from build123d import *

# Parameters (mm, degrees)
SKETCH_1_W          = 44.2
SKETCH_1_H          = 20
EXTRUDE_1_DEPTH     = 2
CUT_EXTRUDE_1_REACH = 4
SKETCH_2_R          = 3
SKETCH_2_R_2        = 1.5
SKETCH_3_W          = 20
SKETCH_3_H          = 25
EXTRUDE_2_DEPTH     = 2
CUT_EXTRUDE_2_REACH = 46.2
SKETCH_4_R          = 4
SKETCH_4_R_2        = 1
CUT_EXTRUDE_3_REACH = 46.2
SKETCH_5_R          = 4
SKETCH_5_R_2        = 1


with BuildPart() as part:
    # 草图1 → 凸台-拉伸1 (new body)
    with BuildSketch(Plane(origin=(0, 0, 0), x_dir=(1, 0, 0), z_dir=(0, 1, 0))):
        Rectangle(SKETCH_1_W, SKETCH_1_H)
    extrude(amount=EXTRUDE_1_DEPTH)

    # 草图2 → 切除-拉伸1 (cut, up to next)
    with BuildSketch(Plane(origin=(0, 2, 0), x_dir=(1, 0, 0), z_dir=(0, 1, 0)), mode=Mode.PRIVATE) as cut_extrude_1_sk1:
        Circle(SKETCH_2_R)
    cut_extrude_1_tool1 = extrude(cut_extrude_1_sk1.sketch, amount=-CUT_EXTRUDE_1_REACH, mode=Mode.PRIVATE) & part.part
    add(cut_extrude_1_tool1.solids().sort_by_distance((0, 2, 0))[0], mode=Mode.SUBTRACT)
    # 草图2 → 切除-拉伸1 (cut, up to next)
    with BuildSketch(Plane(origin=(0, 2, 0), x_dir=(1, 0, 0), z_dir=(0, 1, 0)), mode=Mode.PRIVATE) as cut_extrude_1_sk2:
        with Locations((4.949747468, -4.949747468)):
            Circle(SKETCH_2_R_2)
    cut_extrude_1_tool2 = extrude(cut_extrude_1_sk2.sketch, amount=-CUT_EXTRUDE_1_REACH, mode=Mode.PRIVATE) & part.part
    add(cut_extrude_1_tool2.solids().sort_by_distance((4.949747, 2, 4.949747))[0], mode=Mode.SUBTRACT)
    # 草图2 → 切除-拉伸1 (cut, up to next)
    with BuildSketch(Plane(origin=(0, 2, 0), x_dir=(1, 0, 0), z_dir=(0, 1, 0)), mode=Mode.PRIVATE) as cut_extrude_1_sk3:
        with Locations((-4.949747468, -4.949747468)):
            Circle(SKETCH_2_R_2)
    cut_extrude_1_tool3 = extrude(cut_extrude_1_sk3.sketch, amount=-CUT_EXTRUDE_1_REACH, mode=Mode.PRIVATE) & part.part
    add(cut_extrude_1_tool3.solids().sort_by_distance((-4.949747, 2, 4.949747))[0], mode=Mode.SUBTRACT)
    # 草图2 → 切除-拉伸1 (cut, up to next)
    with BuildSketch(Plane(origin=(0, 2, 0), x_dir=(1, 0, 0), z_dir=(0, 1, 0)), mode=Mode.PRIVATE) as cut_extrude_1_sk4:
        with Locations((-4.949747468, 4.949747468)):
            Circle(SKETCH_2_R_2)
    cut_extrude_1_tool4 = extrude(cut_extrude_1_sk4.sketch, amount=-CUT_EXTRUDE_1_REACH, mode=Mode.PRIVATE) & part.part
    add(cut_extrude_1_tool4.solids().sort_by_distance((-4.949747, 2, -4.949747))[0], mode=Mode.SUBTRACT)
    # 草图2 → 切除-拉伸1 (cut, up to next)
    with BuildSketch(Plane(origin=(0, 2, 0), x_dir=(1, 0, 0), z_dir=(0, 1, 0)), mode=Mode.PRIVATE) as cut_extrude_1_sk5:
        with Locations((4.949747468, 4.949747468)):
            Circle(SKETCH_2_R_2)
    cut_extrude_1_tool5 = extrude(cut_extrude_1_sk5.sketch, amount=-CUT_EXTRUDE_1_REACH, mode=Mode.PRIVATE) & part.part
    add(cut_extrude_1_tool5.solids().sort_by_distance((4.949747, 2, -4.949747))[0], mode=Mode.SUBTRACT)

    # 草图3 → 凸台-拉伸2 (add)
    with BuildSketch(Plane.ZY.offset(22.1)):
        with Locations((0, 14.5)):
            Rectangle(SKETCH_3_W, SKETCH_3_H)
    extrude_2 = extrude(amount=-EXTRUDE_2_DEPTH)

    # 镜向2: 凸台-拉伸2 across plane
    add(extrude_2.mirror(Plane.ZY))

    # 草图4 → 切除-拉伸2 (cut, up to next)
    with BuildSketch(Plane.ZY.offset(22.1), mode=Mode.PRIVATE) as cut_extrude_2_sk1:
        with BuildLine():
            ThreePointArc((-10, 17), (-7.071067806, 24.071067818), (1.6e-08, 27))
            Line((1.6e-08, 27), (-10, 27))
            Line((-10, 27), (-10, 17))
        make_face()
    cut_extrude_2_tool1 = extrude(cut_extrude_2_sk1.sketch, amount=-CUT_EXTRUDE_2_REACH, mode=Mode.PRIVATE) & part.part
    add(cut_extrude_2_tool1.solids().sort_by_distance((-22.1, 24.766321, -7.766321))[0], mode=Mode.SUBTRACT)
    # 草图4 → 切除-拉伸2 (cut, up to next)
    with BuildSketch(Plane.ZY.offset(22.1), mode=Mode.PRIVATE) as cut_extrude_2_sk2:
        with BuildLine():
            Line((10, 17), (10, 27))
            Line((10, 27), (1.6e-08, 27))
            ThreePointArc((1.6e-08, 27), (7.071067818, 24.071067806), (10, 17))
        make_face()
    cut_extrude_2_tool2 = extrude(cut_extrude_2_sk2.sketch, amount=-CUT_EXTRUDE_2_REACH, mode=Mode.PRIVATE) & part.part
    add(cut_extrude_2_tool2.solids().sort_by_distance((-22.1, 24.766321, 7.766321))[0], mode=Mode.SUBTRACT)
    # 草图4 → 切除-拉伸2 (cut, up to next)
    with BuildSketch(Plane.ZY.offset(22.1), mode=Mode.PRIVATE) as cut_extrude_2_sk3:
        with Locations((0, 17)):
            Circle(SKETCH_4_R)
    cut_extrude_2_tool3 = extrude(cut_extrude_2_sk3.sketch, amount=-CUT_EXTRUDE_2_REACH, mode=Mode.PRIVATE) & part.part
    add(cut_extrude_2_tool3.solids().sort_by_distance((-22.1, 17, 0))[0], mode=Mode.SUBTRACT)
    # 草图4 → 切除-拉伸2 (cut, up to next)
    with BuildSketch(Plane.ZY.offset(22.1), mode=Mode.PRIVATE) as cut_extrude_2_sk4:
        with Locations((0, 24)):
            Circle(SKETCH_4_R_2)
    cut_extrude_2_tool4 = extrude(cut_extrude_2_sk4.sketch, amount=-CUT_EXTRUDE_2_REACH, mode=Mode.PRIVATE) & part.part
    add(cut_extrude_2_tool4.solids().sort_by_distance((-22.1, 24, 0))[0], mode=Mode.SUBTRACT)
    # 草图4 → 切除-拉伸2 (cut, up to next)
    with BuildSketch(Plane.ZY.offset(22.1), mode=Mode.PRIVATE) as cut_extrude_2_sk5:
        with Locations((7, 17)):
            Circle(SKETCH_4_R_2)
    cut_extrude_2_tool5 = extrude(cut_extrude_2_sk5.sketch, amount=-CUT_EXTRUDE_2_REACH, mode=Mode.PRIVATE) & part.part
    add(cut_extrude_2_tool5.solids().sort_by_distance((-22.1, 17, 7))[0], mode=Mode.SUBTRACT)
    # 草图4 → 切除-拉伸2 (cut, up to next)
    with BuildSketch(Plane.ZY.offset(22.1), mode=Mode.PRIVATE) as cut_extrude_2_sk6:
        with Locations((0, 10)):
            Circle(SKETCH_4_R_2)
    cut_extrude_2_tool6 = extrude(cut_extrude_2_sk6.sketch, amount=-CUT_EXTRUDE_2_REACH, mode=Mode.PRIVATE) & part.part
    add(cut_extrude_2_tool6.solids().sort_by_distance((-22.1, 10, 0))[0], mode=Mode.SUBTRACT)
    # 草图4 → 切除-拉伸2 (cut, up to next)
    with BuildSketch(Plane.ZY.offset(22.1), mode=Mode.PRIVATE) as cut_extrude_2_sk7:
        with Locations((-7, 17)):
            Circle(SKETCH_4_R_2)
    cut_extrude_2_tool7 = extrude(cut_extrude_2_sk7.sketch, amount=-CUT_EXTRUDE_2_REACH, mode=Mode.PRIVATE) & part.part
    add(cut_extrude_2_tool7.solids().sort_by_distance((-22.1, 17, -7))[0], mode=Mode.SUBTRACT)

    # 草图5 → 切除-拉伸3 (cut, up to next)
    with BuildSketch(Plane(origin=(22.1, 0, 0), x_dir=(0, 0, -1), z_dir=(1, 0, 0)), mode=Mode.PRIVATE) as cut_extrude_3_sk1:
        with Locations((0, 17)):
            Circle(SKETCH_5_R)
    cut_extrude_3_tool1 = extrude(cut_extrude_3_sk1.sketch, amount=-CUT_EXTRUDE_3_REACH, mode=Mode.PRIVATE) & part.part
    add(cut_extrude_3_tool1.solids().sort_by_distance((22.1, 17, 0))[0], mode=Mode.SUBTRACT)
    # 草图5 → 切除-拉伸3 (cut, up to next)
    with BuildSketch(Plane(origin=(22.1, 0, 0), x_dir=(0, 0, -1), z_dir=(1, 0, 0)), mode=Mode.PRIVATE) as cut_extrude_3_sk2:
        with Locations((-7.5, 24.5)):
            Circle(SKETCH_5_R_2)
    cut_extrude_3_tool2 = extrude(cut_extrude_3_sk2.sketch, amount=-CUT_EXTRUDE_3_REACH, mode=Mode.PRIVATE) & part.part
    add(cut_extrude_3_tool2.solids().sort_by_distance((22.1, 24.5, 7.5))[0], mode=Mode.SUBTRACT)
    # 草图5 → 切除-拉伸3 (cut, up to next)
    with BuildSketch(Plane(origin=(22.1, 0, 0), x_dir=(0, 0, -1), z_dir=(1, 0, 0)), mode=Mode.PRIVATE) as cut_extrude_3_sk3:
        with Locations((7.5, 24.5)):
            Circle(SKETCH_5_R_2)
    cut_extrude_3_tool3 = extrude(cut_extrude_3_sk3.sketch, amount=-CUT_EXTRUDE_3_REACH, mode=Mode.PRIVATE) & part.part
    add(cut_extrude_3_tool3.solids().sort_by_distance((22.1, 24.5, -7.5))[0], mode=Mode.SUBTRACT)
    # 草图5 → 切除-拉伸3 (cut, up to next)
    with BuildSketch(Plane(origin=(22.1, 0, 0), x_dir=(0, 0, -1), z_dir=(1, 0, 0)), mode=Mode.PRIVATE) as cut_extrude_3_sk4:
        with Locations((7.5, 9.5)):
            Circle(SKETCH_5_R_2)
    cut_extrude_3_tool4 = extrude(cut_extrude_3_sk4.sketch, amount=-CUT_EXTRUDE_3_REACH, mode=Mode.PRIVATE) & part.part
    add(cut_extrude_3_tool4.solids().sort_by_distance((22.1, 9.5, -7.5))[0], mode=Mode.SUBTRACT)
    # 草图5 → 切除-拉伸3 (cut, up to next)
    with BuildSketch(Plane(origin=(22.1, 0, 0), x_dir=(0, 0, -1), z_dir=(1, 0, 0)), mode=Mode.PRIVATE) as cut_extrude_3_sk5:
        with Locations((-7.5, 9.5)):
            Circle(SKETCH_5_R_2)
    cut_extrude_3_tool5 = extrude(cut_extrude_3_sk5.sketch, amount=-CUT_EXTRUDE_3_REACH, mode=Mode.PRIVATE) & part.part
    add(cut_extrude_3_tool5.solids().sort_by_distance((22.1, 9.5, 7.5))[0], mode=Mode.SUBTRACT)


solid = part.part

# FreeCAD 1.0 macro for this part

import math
import FreeCAD as App
import Part
import Sketcher
Q = App.Units.Quantity

doc = App.newDocument("Part")
params = doc.addObject("Spreadsheet::Sheet", "Params")
for row, (alias, value) in enumerate([
    ("sketch1_height", "20 mm"),
    ("sketch1_width", "44.2 mm"),
    ("pad1_length", "2 mm"),
    ("sketch2_diameter", "6 mm"),
    ("sketch3_diameter", "3 mm"),
    ("sketch4_diameter", "3 mm"),
    ("sketch5_diameter", "3 mm"),
    ("sketch6_diameter", "3 mm"),
    ("sketch7_width", "25 mm"),
    ("sketch7_height", "20 mm"),
    ("pad2_length", "2 mm"),
    ("sketch8_radius", "10 mm"),
    ("sketch9_radius", "10 mm"),
    ("sketch10_diameter", "8 mm"),
    ("sketch11_diameter", "2 mm"),
    ("sketch12_diameter", "2 mm"),
    ("sketch13_diameter", "2 mm"),
    ("sketch14_diameter", "2 mm"),
    ("sketch15_diameter", "8 mm"),
    ("sketch16_diameter", "2 mm"),
    ("sketch17_diameter", "2 mm"),
    ("sketch18_diameter", "2 mm"),
    ("sketch19_diameter", "2 mm"),
], start=1):
    params.set(f"A{row}", alias)
    params.set(f"B{row}", "=" + value)
    params.setAlias(f"B{row}", alias)

body = doc.addObject("PartDesign::Body", "Body")

sketch1 = body.newObject("Sketcher::SketchObject", "Sketch")
sketch1.AttachmentSupport = (doc.getObject("XZ_Plane"), [""])
sketch1.MapMode = "FlatFace"
sketch1.addGeometry([
    Part.LineSegment(App.Vector(-22.1, -10, 0), App.Vector(-22.1, 10, 0)),
    Part.LineSegment(App.Vector(-22.1, 10, 0), App.Vector(22.1, 10, 0)),
    Part.LineSegment(App.Vector(22.1, 10, 0), App.Vector(22.1, -10, 0)),
    Part.LineSegment(App.Vector(22.1, -10, 0), App.Vector(-22.1, -10, 0)),
], False)
sketch1.addConstraint([
    Sketcher.Constraint("Coincident", 0, 2, 1, 1),
    Sketcher.Constraint("Coincident", 1, 2, 2, 1),
    Sketcher.Constraint("Coincident", 2, 2, 3, 1),
    Sketcher.Constraint("Coincident", 3, 2, 0, 1),
    Sketcher.Constraint("Vertical", 0),
    Sketcher.Constraint("Horizontal", 1),
    Sketcher.Constraint("Vertical", 2),
    Sketcher.Constraint("Horizontal", 3),
    Sketcher.Constraint("Symmetric", 0, 2, 2, 2, -1, 1),
    Sketcher.Constraint("DistanceY", 0, 1, 0, 2, Q("20 mm")),
    Sketcher.Constraint("DistanceX", 1, 1, 1, 2, Q("44.2 mm")),
])
sketch1.setExpression("Constraints[9]", "Params.sketch1_height")
sketch1.setExpression("Constraints[10]", "Params.sketch1_width")
pad1 = body.newObject("PartDesign::Pad", "Pad")
pad1.Profile = sketch1
pad1.setExpression("Length", "Params.pad1_length")
pad1.Reversed = True

sketch2 = body.newObject("Sketcher::SketchObject", "Sketch001")
sketch2.AttachmentSupport = (doc.getObject("XZ_Plane"), [""])
sketch2.MapMode = "FlatFace"
sketch2.AttachmentOffset = App.Placement(App.Vector(0, 0, -2), App.Rotation())
sketch2.addGeometry(Part.Circle(App.Vector(0, 0, 0), App.Vector(0, 0, 1), 3), False)
sketch2.addConstraint([
    Sketcher.Constraint("Coincident", 0, 3, -1, 1),
    Sketcher.Constraint("Diameter", 0, Q("6 mm")),
])
sketch2.setExpression("Constraints[1]", "Params.sketch2_diameter")
pocket1 = body.newObject("PartDesign::Pocket", "Pocket")
pocket1.Profile = sketch2
pocket1.Type = "UpToFirst"
pocket1.Reversed = True

sketch3 = body.newObject("Sketcher::SketchObject", "Sketch002")
sketch3.AttachmentSupport = (doc.getObject("XZ_Plane"), [""])
sketch3.MapMode = "FlatFace"
sketch3.AttachmentOffset = App.Placement(App.Vector(0, 0, -2), App.Rotation())
sketch3.addGeometry(Part.Circle(App.Vector(4.949747, 4.949747, 0), App.Vector(0, 0, 1), 1.5), False)
sketch3.addConstraint([
    Sketcher.Constraint("Diameter", 0, Q("3 mm")),
    Sketcher.Constraint("DistanceX", -1, 1, 0, 3, Q("4.949747 mm")),
    Sketcher.Constraint("DistanceY", -1, 1, 0, 3, Q("4.949747 mm")),
])
sketch3.setExpression("Constraints[0]", "Params.sketch3_diameter")
pocket2 = body.newObject("PartDesign::Pocket", "Pocket001")
pocket2.Profile = sketch3
pocket2.Type = "UpToFirst"
pocket2.Reversed = True

sketch4 = body.newObject("Sketcher::SketchObject", "Sketch003")
sketch4.AttachmentSupport = (doc.getObject("XZ_Plane"), [""])
sketch4.MapMode = "FlatFace"
sketch4.AttachmentOffset = App.Placement(App.Vector(0, 0, -2), App.Rotation())
sketch4.addGeometry(Part.Circle(App.Vector(-4.949747, 4.949747, 0), App.Vector(0, 0, 1), 1.5), False)
sketch4.addConstraint([
    Sketcher.Constraint("Diameter", 0, Q("3 mm")),
    Sketcher.Constraint("DistanceX", 0, 3, -1, 1, Q("4.949747 mm")),
    Sketcher.Constraint("DistanceY", -1, 1, 0, 3, Q("4.949747 mm")),
])
sketch4.setExpression("Constraints[0]", "Params.sketch4_diameter")
pocket3 = body.newObject("PartDesign::Pocket", "Pocket002")
pocket3.Profile = sketch4
pocket3.Type = "UpToFirst"
pocket3.Reversed = True

sketch5 = body.newObject("Sketcher::SketchObject", "Sketch004")
sketch5.AttachmentSupport = (doc.getObject("XZ_Plane"), [""])
sketch5.MapMode = "FlatFace"
sketch5.AttachmentOffset = App.Placement(App.Vector(0, 0, -2), App.Rotation())
sketch5.addGeometry(Part.Circle(App.Vector(-4.949747, -4.949747, 0), App.Vector(0, 0, 1), 1.5), False)
sketch5.addConstraint([
    Sketcher.Constraint("Diameter", 0, Q("3 mm")),
    Sketcher.Constraint("DistanceX", 0, 3, -1, 1, Q("4.949747 mm")),
    Sketcher.Constraint("DistanceY", 0, 3, -1, 1, Q("4.949747 mm")),
])
sketch5.setExpression("Constraints[0]", "Params.sketch5_diameter")
pocket4 = body.newObject("PartDesign::Pocket", "Pocket003")
pocket4.Profile = sketch5
pocket4.Type = "UpToFirst"
pocket4.Reversed = True

sketch6 = body.newObject("Sketcher::SketchObject", "Sketch005")
sketch6.AttachmentSupport = (doc.getObject("XZ_Plane"), [""])
sketch6.MapMode = "FlatFace"
sketch6.AttachmentOffset = App.Placement(App.Vector(0, 0, -2), App.Rotation())
sketch6.addGeometry(Part.Circle(App.Vector(4.949747, -4.949747, 0), App.Vector(0, 0, 1), 1.5), False)
sketch6.addConstraint([
    Sketcher.Constraint("Diameter", 0, Q("3 mm")),
    Sketcher.Constraint("DistanceX", -1, 1, 0, 3, Q("4.949747 mm")),
    Sketcher.Constraint("DistanceY", 0, 3, -1, 1, Q("4.949747 mm")),
])
sketch6.setExpression("Constraints[0]", "Params.sketch6_diameter")
pocket5 = body.newObject("PartDesign::Pocket", "Pocket004")
pocket5.Profile = sketch6
pocket5.Type = "UpToFirst"
pocket5.Reversed = True

sketch7 = body.newObject("Sketcher::SketchObject", "Sketch006")
sketch7.AttachmentSupport = (doc.getObject("YZ_Plane"), [""])
sketch7.MapMode = "FlatFace"
sketch7.AttachmentOffset = App.Placement(App.Vector(0, 0, -22.1), App.Rotation())
sketch7.addGeometry([
    Part.LineSegment(App.Vector(27, -10, 0), App.Vector(2, -10, 0)),
    Part.LineSegment(App.Vector(2, -10, 0), App.Vector(2, 10, 0)),
    Part.LineSegment(App.Vector(2, 10, 0), App.Vector(27, 10, 0)),
    Part.LineSegment(App.Vector(27, 10, 0), App.Vector(27, -10, 0)),
], False)
sketch7.addConstraint([
    Sketcher.Constraint("Coincident", 0, 2, 1, 1),
    Sketcher.Constraint("Coincident", 1, 2, 2, 1),
    Sketcher.Constraint("Coincident", 2, 2, 3, 1),
    Sketcher.Constraint("Coincident", 3, 2, 0, 1),
    Sketcher.Constraint("Horizontal", 0),
    Sketcher.Constraint("Vertical", 1),
    Sketcher.Constraint("Horizontal", 2),
    Sketcher.Constraint("Vertical", 3),
    Sketcher.Constraint("DistanceX", 0, 2, 0, 1, Q("25 mm")),
    Sketcher.Constraint("DistanceY", 1, 1, 1, 2, Q("20 mm")),
    Sketcher.Constraint("DistanceX", -1, 1, 0, 2, Q("2 mm")),
    Sketcher.Constraint("DistanceY", 0, 2, -1, 1, Q("10 mm")),
])
sketch7.setExpression("Constraints[8]", "Params.sketch7_width")
sketch7.setExpression("Constraints[9]", "Params.sketch7_height")
pad2 = body.newObject("PartDesign::Pad", "Pad001")
pad2.Profile = sketch7
pad2.setExpression("Length", "Params.pad2_length")
doc.recompute()

mirrored = body.newObject("PartDesign::Mirrored", "Mirrored")
mirrored.Originals = [pad2]
mirrored.MirrorPlane = (doc.getObject("YZ_Plane"), [""])
body.Tip = mirrored

sketch8 = body.newObject("Sketcher::SketchObject", "Sketch007")
sketch8.AttachmentSupport = (doc.getObject("YZ_Plane"), [""])
sketch8.MapMode = "FlatFace"
sketch8.AttachmentOffset = App.Placement(App.Vector(0, 0, -22.1), App.Rotation())
sketch8.addGeometry([
    Part.ArcOfCircle(Part.Circle(App.Vector(17, 0, 0), App.Vector(0, 0, 1), 10), math.radians(-90), math.radians(0)),
    Part.LineSegment(App.Vector(27, 0, 0), App.Vector(27, -10, 0)),
    Part.LineSegment(App.Vector(27, -10, 0), App.Vector(17, -10, 0)),
], False)
sketch8.addConstraint([
    Sketcher.Constraint("Tangent", 0, 2, 1, 1),
    Sketcher.Constraint("Coincident", 1, 2, 2, 1),
    Sketcher.Constraint("Tangent", 2, 2, 0, 1),
    Sketcher.Constraint("Vertical", 1),
    Sketcher.Constraint("Horizontal", 2),
    Sketcher.Constraint("PointOnObject", 0, 3, -1),
    Sketcher.Constraint("Radius", 0, Q("10 mm")),
    Sketcher.Constraint("DistanceX", -1, 1, 0, 3, Q("17 mm")),
])
sketch8.setExpression("Constraints[6]", "Params.sketch8_radius")
pocket6 = body.newObject("PartDesign::Pocket", "Pocket005")
pocket6.Profile = sketch8
pocket6.Type = "UpToFirst"
pocket6.Reversed = True

sketch9 = body.newObject("Sketcher::SketchObject", "Sketch008")
sketch9.AttachmentSupport = (doc.getObject("YZ_Plane"), [""])
sketch9.MapMode = "FlatFace"
sketch9.AttachmentOffset = App.Placement(App.Vector(0, 0, -22.1), App.Rotation())
sketch9.addGeometry([
    Part.LineSegment(App.Vector(17, 10, 0), App.Vector(27, 10, 0)),
    Part.LineSegment(App.Vector(27, 10, 0), App.Vector(27, 0, 0)),
    Part.ArcOfCircle(Part.Circle(App.Vector(17, 0, 0), App.Vector(0, 0, 1), 10), math.radians(0), math.radians(90)),
], False)
sketch9.addConstraint([
    Sketcher.Constraint("Coincident", 0, 2, 1, 1),
    Sketcher.Constraint("Tangent", 1, 2, 2, 1),
    Sketcher.Constraint("Tangent", 2, 2, 0, 1),
    Sketcher.Constraint("Horizontal", 0),
    Sketcher.Constraint("Vertical", 1),
    Sketcher.Constraint("PointOnObject", 2, 3, -1),
    Sketcher.Constraint("Radius", 2, Q("10 mm")),
    Sketcher.Constraint("DistanceX", -1, 1, 2, 3, Q("17 mm")),
])
sketch9.setExpression("Constraints[6]", "Params.sketch9_radius")
pocket7 = body.newObject("PartDesign::Pocket", "Pocket006")
pocket7.Profile = sketch9
pocket7.Type = "UpToFirst"
pocket7.Reversed = True

sketch10 = body.newObject("Sketcher::SketchObject", "Sketch009")
sketch10.AttachmentSupport = (doc.getObject("YZ_Plane"), [""])
sketch10.MapMode = "FlatFace"
sketch10.AttachmentOffset = App.Placement(App.Vector(0, 0, -22.1), App.Rotation())
sketch10.addGeometry(Part.Circle(App.Vector(17, 0, 0), App.Vector(0, 0, 1), 4), False)
sketch10.addConstraint([
    Sketcher.Constraint("PointOnObject", 0, 3, -1),
    Sketcher.Constraint("Diameter", 0, Q("8 mm")),
    Sketcher.Constraint("DistanceX", -1, 1, 0, 3, Q("17 mm")),
])
sketch10.setExpression("Constraints[1]", "Params.sketch10_diameter")
pocket8 = body.newObject("PartDesign::Pocket", "Pocket007")
pocket8.Profile = sketch10
pocket8.Type = "UpToFirst"
pocket8.Reversed = True

sketch11 = body.newObject("Sketcher::SketchObject", "Sketch010")
sketch11.AttachmentSupport = (doc.getObject("YZ_Plane"), [""])
sketch11.MapMode = "FlatFace"
sketch11.AttachmentOffset = App.Placement(App.Vector(0, 0, -22.1), App.Rotation())
sketch11.addGeometry(Part.Circle(App.Vector(24, 0, 0), App.Vector(0, 0, 1), 1), False)
sketch11.addConstraint([
    Sketcher.Constraint("PointOnObject", 0, 3, -1),
    Sketcher.Constraint("Diameter", 0, Q("2 mm")),
    Sketcher.Constraint("DistanceX", -1, 1, 0, 3, Q("24 mm")),
])
sketch11.setExpression("Constraints[1]", "Params.sketch11_diameter")
pocket9 = body.newObject("PartDesign::Pocket", "Pocket008")
pocket9.Profile = sketch11
pocket9.Type = "UpToFirst"
pocket9.Reversed = True

sketch12 = body.newObject("Sketcher::SketchObject", "Sketch011")
sketch12.AttachmentSupport = (doc.getObject("YZ_Plane"), [""])
sketch12.MapMode = "FlatFace"
sketch12.AttachmentOffset = App.Placement(App.Vector(0, 0, -22.1), App.Rotation())
sketch12.addGeometry(Part.Circle(App.Vector(17, 7, 0), App.Vector(0, 0, 1), 1), False)
sketch12.addConstraint([
    Sketcher.Constraint("Diameter", 0, Q("2 mm")),
    Sketcher.Constraint("DistanceX", -1, 1, 0, 3, Q("17 mm")),
    Sketcher.Constraint("DistanceY", -1, 1, 0, 3, Q("7 mm")),
])
sketch12.setExpression("Constraints[0]", "Params.sketch12_diameter")
pocket10 = body.newObject("PartDesign::Pocket", "Pocket009")
pocket10.Profile = sketch12
pocket10.Type = "UpToFirst"
pocket10.Reversed = True

sketch13 = body.newObject("Sketcher::SketchObject", "Sketch012")
sketch13.AttachmentSupport = (doc.getObject("YZ_Plane"), [""])
sketch13.MapMode = "FlatFace"
sketch13.AttachmentOffset = App.Placement(App.Vector(0, 0, -22.1), App.Rotation())
sketch13.addGeometry(Part.Circle(App.Vector(10, 0, 0), App.Vector(0, 0, 1), 1), False)
sketch13.addConstraint([
    Sketcher.Constraint("PointOnObject", 0, 3, -1),
    Sketcher.Constraint("Diameter", 0, Q("2 mm")),
    Sketcher.Constraint("DistanceX", -1, 1, 0, 3, Q("10 mm")),
])
sketch13.setExpression("Constraints[1]", "Params.sketch13_diameter")
pocket11 = body.newObject("PartDesign::Pocket", "Pocket010")
pocket11.Profile = sketch13
pocket11.Type = "UpToFirst"
pocket11.Reversed = True

sketch14 = body.newObject("Sketcher::SketchObject", "Sketch013")
sketch14.AttachmentSupport = (doc.getObject("YZ_Plane"), [""])
sketch14.MapMode = "FlatFace"
sketch14.AttachmentOffset = App.Placement(App.Vector(0, 0, -22.1), App.Rotation())
sketch14.addGeometry(Part.Circle(App.Vector(17, -7, 0), App.Vector(0, 0, 1), 1), False)
sketch14.addConstraint([
    Sketcher.Constraint("Diameter", 0, Q("2 mm")),
    Sketcher.Constraint("DistanceX", -1, 1, 0, 3, Q("17 mm")),
    Sketcher.Constraint("DistanceY", 0, 3, -1, 1, Q("7 mm")),
])
sketch14.setExpression("Constraints[0]", "Params.sketch14_diameter")
pocket12 = body.newObject("PartDesign::Pocket", "Pocket011")
pocket12.Profile = sketch14
pocket12.Type = "UpToFirst"
pocket12.Reversed = True

sketch15 = body.newObject("Sketcher::SketchObject", "Sketch014")
sketch15.AttachmentSupport = (doc.getObject("YZ_Plane"), [""])
sketch15.MapMode = "FlatFace"
sketch15.AttachmentOffset = App.Placement(App.Vector(0, 0, 22.1), App.Rotation())
sketch15.addGeometry(Part.Circle(App.Vector(17, 0, 0), App.Vector(0, 0, 1), 4), False)
sketch15.addConstraint([
    Sketcher.Constraint("PointOnObject", 0, 3, -1),
    Sketcher.Constraint("Diameter", 0, Q("8 mm")),
    Sketcher.Constraint("DistanceX", -1, 1, 0, 3, Q("17 mm")),
])
sketch15.setExpression("Constraints[1]", "Params.sketch15_diameter")
pocket13 = body.newObject("PartDesign::Pocket", "Pocket012")
pocket13.Profile = sketch15
pocket13.Type = "UpToFirst"

sketch16 = body.newObject("Sketcher::SketchObject", "Sketch015")
sketch16.AttachmentSupport = (doc.getObject("YZ_Plane"), [""])
sketch16.MapMode = "FlatFace"
sketch16.AttachmentOffset = App.Placement(App.Vector(0, 0, 22.1), App.Rotation())
sketch16.addGeometry(Part.Circle(App.Vector(24.5, 7.5, 0), App.Vector(0, 0, 1), 1), False)
sketch16.addConstraint([
    Sketcher.Constraint("Diameter", 0, Q("2 mm")),
    Sketcher.Constraint("DistanceX", -1, 1, 0, 3, Q("24.5 mm")),
    Sketcher.Constraint("DistanceY", -1, 1, 0, 3, Q("7.5 mm")),
])
sketch16.setExpression("Constraints[0]", "Params.sketch16_diameter")
pocket14 = body.newObject("PartDesign::Pocket", "Pocket013")
pocket14.Profile = sketch16
pocket14.Type = "UpToFirst"

sketch17 = body.newObject("Sketcher::SketchObject", "Sketch016")
sketch17.AttachmentSupport = (doc.getObject("YZ_Plane"), [""])
sketch17.MapMode = "FlatFace"
sketch17.AttachmentOffset = App.Placement(App.Vector(0, 0, 22.1), App.Rotation())
sketch17.addGeometry(Part.Circle(App.Vector(24.5, -7.5, 0), App.Vector(0, 0, 1), 1), False)
sketch17.addConstraint([
    Sketcher.Constraint("Diameter", 0, Q("2 mm")),
    Sketcher.Constraint("DistanceX", -1, 1, 0, 3, Q("24.5 mm")),
    Sketcher.Constraint("DistanceY", 0, 3, -1, 1, Q("7.5 mm")),
])
sketch17.setExpression("Constraints[0]", "Params.sketch17_diameter")
pocket15 = body.newObject("PartDesign::Pocket", "Pocket014")
pocket15.Profile = sketch17
pocket15.Type = "UpToFirst"

sketch18 = body.newObject("Sketcher::SketchObject", "Sketch017")
sketch18.AttachmentSupport = (doc.getObject("YZ_Plane"), [""])
sketch18.MapMode = "FlatFace"
sketch18.AttachmentOffset = App.Placement(App.Vector(0, 0, 22.1), App.Rotation())
sketch18.addGeometry(Part.Circle(App.Vector(9.5, -7.5, 0), App.Vector(0, 0, 1), 1), False)
sketch18.addConstraint([
    Sketcher.Constraint("Diameter", 0, Q("2 mm")),
    Sketcher.Constraint("DistanceX", -1, 1, 0, 3, Q("9.5 mm")),
    Sketcher.Constraint("DistanceY", 0, 3, -1, 1, Q("7.5 mm")),
])
sketch18.setExpression("Constraints[0]", "Params.sketch18_diameter")
pocket16 = body.newObject("PartDesign::Pocket", "Pocket015")
pocket16.Profile = sketch18
pocket16.Type = "UpToFirst"

sketch19 = body.newObject("Sketcher::SketchObject", "Sketch018")
sketch19.AttachmentSupport = (doc.getObject("YZ_Plane"), [""])
sketch19.MapMode = "FlatFace"
sketch19.AttachmentOffset = App.Placement(App.Vector(0, 0, 22.1), App.Rotation())
sketch19.addGeometry(Part.Circle(App.Vector(9.5, 7.5, 0), App.Vector(0, 0, 1), 1), False)
sketch19.addConstraint([
    Sketcher.Constraint("Diameter", 0, Q("2 mm")),
    Sketcher.Constraint("DistanceX", -1, 1, 0, 3, Q("9.5 mm")),
    Sketcher.Constraint("DistanceY", -1, 1, 0, 3, Q("7.5 mm")),
])
sketch19.setExpression("Constraints[0]", "Params.sketch19_diameter")
pocket17 = body.newObject("PartDesign::Pocket", "Pocket016")
pocket17.Profile = sketch19
pocket17.Type = "UpToFirst"

doc.recompute()
